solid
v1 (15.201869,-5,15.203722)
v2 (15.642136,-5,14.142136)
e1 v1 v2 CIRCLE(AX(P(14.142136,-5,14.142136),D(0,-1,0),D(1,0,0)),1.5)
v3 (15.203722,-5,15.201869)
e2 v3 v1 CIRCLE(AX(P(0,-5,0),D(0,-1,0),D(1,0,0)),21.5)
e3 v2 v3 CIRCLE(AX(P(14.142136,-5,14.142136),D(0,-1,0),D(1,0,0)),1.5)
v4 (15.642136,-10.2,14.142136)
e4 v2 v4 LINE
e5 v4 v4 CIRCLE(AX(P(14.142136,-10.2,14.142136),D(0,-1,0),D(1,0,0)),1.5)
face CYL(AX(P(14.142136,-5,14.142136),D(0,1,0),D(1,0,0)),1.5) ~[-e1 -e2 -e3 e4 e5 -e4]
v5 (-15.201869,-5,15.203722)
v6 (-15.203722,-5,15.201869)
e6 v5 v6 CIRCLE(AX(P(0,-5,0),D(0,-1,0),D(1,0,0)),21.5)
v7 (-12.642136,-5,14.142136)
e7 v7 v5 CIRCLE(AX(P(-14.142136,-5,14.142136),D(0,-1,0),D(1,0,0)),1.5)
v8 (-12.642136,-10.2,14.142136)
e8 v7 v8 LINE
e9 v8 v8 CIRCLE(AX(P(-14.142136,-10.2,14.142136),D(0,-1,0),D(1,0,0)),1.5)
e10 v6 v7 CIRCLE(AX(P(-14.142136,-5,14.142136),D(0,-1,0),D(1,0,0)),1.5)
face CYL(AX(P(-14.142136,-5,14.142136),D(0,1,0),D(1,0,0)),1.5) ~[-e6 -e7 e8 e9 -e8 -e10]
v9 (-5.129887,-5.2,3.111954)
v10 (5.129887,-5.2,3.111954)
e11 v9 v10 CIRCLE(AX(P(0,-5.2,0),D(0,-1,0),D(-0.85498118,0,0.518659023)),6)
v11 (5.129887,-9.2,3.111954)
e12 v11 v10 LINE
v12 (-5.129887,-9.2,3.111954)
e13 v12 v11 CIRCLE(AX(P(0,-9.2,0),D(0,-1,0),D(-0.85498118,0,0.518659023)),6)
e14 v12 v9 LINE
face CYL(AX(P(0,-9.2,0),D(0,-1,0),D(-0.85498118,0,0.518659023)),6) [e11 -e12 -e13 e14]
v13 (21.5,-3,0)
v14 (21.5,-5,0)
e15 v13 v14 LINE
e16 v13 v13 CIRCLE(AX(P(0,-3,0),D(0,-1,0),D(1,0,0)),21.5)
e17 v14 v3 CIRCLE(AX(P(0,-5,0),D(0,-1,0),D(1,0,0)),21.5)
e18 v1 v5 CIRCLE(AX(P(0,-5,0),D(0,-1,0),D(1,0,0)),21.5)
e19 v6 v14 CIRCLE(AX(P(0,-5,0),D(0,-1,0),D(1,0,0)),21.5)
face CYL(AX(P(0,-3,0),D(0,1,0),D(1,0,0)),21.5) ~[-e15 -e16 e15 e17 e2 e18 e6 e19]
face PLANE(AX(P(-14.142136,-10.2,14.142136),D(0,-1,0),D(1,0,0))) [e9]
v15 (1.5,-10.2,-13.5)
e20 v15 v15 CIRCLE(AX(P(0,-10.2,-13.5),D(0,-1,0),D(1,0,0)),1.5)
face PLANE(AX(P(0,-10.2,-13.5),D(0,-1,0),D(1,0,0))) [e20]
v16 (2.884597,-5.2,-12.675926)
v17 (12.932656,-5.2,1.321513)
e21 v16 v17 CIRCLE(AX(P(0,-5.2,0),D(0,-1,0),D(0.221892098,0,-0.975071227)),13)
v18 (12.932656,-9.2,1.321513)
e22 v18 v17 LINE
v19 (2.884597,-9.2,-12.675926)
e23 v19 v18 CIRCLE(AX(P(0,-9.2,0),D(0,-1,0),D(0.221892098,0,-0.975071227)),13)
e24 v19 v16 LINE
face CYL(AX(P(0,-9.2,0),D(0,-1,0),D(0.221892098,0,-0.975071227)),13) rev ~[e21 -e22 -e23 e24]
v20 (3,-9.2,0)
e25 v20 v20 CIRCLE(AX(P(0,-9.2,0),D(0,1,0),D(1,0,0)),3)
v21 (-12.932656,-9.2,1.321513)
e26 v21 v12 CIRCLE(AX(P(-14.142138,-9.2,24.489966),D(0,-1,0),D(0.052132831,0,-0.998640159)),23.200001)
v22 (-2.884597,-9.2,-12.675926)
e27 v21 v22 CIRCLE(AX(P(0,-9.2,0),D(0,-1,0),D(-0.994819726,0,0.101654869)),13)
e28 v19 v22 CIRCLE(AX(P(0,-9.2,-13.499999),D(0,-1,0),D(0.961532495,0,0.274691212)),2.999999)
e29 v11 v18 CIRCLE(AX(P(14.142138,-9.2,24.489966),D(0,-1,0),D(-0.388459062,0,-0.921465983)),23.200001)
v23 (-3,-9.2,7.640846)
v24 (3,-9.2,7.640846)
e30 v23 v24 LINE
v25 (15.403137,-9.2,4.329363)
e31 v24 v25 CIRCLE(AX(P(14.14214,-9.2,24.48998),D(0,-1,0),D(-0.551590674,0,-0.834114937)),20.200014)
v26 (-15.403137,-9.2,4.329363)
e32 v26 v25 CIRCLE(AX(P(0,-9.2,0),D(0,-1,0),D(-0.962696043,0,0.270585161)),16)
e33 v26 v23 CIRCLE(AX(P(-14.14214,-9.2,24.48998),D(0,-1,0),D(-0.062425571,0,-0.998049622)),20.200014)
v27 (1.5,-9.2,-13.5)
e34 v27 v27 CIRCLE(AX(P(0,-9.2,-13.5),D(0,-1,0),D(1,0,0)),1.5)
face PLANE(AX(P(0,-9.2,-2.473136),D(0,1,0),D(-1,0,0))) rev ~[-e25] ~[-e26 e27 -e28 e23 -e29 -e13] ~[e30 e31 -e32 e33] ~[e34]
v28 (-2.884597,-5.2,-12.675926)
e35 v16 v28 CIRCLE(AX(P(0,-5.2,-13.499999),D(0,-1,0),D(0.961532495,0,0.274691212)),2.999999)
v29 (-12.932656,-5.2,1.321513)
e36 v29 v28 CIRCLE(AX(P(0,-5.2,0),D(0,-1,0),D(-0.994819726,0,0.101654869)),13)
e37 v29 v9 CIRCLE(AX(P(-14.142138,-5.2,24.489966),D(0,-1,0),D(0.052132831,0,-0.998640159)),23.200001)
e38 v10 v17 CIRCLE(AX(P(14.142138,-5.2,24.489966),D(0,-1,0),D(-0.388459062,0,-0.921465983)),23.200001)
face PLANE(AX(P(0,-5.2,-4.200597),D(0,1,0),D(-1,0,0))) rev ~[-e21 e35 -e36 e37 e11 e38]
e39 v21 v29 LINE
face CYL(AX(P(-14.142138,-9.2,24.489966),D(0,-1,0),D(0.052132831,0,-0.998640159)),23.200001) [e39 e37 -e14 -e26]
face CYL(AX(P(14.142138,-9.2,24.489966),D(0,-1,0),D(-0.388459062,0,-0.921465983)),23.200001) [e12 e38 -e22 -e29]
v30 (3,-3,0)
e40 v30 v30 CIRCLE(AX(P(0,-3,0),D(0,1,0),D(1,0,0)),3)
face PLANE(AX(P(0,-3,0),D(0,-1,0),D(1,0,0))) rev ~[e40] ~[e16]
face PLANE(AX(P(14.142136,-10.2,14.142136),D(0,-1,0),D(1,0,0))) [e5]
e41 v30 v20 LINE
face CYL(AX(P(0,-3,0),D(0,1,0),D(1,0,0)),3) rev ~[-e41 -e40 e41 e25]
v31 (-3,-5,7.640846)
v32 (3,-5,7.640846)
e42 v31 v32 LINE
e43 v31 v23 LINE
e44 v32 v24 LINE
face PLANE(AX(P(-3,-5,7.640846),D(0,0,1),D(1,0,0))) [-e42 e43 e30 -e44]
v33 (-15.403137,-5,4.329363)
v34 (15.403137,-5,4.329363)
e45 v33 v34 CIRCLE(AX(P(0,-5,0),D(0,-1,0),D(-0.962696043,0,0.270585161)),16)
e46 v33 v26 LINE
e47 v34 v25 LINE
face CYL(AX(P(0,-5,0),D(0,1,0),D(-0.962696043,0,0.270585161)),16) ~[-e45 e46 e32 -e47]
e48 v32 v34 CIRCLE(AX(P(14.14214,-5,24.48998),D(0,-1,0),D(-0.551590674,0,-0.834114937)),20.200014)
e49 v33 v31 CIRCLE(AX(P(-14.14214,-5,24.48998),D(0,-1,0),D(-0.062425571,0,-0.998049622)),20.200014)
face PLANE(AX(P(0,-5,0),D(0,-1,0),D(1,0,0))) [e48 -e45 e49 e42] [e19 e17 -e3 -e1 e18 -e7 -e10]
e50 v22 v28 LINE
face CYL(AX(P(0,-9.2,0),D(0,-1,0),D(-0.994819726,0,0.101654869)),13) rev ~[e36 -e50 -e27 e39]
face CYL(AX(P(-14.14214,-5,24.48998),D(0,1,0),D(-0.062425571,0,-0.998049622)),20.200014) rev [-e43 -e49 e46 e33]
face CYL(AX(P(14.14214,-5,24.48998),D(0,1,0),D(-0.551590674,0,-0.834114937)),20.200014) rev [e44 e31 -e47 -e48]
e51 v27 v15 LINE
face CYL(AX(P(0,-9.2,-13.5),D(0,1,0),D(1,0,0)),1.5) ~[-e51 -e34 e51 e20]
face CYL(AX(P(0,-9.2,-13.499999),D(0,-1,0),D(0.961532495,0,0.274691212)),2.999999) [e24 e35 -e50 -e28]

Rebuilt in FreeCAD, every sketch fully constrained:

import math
import FreeCAD as App
import Part
import Sketcher
from FreeCAD import Vector
Q = App.Units.Quantity

doc = App.newDocument("Part")
params = doc.addObject("Spreadsheet::Sheet", "Params")
for row, (alias, value) in enumerate([
    ("sketch1_diameter", "43 mm"),
    ("pad1_length", "2 mm"),
    ("sketch2_diameter", "3 mm"),
    ("pad2_length", "5.2 mm"),
    ("sketch3_radius", "16 mm"),
    ("sketch3_width", "6 mm"),
    ("pad3_length", "4.2 mm"),
    ("sketch4_diameter", "3 mm"),
    ("pad4_length", "1 mm"),
    ("sketch5_radius", "13 mm"),
    ("sketch5_radius2", "2.999999 mm"),
    ("sketch5_radius3", "6 mm"),
    ("sketch5_radius4", "23.200001 mm"),
    ("pocket1_length", "4 mm"),
    ("sketch6_diameter", "6 mm"),
    ("sketch7_diameter", "6 mm"),
], start=1):
    params.set(f"A{row}", alias)
    params.set(f"B{row}", "=" + value)
    params.setAlias(f"B{row}", alias)

body = doc.addObject("PartDesign::Body", "Body")

# Sketch on XZ plane
sketch1 = body.newObject("Sketcher::SketchObject", "Sketch")
sketch1.AttachmentSupport = (doc.getObject("XZ_Plane"), [""])
sketch1.MapMode = "FlatFace"
sketch1.addGeometry(Part.Circle(Vector(0, 0, 0), Vector(0, 0, 1), 22), False)
sketch1.addConstraint([
    Sketcher.Constraint("Coincident", 0, 3, -1, 1),
    Sketcher.Constraint("Diameter", 0, Q("43 mm")),
])
sketch1.setExpression("Constraints[1]", "Params.sketch1_diameter")
pad1 = body.newObject("PartDesign::Pad", "Pad")
pad1.Profile = sketch1
pad1.setExpression("Length", "Params.pad1_length")

# Sketch on XZ plane
sketch2 = body.newObject("Sketcher::SketchObject", "Sketch001")
sketch2.AttachmentSupport = (doc.getObject("XZ_Plane"), [""])
sketch2.MapMode = "FlatFace"
sketch2.AttachmentOffset = App.Placement(Vector(0, 0, 2), App.Rotation())
sketch2.addGeometry([
    Part.Circle(Vector(-14.1, 14.1, 0), Vector(0, 0, 1), 1.5),
    Part.Circle(Vector(14.1, 14.1, 0), Vector(0, 0, 1), 1.5),
], False)
sketch2.addConstraint([
    Sketcher.Constraint("Equal", 0, 1),
    Sketcher.Constraint("Symmetric", 0, 3, 1, 3, -2),
    Sketcher.Constraint("Diameter", 0, Q("3 mm")),
    Sketcher.Constraint("DistanceX", 0, 3, -1, 1, Q("14.142136 mm")),
    Sketcher.Constraint("DistanceY", -1, 1, 0, 3, Q("14.142136 mm")),
])
sketch2.setExpression("Constraints[2]", "Params.sketch2_diameter")
pad2 = body.newObject("PartDesign::Pad", "Pad001")
pad2.Profile = sketch2
pad2.setExpression("Length", "Params.pad2_length")

# Sketch on XZ plane
sketch3 = body.newObject("Sketcher::SketchObject", "Sketch002")
sketch3.AttachmentSupport = (doc.getObject("XZ_Plane"), [""])
sketch3.MapMode = "FlatFace"
sketch3.AttachmentOffset = App.Placement(Vector(0, 0, 2), App.Rotation())
sketch3.addGeometry([
    Part.ArcOfCircle(Part.Circle(Vector(-14, 24, 0), Vector(0, 0, 1), 20), math.radians(-94), math.radians(-57)),
    Part.ArcOfCircle(Part.Circle(Vector(0, 0, 0), Vector(0, 0, 1), 16), math.radians(164), math.radians(376)),
    Part.ArcOfCircle(Part.Circle(Vector(14, 24, 0), Vector(0, 0, 1), 20), math.radians(-123), math.radians(-86)),
    Part.LineSegment(Vector(3, 8, 0), Vector(-3, 8, 0)),
], False)
sketch3.addConstraint([
    Sketcher.Constraint("Coincident", 0, 1, 1, 1),
    Sketcher.Constraint("Coincident", 1, 2, 2, 2),
    Sketcher.Constraint("Coincident", 2, 1, 3, 1),
    Sketcher.Constraint("Coincident", 3, 2, 0, 2),
    Sketcher.Constraint("Horizontal", 3),
    Sketcher.Constraint("Coincident", 1, 3, -1, 1),
    Sketcher.Constraint("Equal", 0, 2),
    Sketcher.Constraint("Symmetric", 0, 3, 2, 3, -2),
    Sketcher.Constraint("Radius", 1, Q("16 mm")),
    Sketcher.Constraint("DistanceX", 3, 2, 3, 1, Q("6 mm")),
    Sketcher.Constraint("Radius", 0, Q("20.200014 mm")),
    Sketcher.Constraint("DistanceX", 0, 3, -1, 1, Q("14.14214 mm")),
    Sketcher.Constraint("DistanceY", -1, 1, 0, 3, Q("24.48998 mm")),
])
sketch3.setExpression("Constraints[8]", "Params.sketch3_radius")
sketch3.setExpression("Constraints[9]", "Params.sketch3_width")
pad3 = body.newObject("PartDesign::Pad", "Pad002")
pad3.Profile = sketch3
pad3.setExpression("Length", "Params.pad3_length")

# Sketch on XZ plane
sketch4 = body.newObject("Sketcher::SketchObject", "Sketch003")
sketch4.AttachmentSupport = (doc.getObject("XZ_Plane"), [""])
sketch4.MapMode = "FlatFace"
sketch4.AttachmentOffset = App.Placement(Vector(0, 0, 6.2), App.Rotation())
sketch4.addGeometry(Part.Circle(Vector(0, -13.5, 0), Vector(0, 0, 1), 1.5), False)
sketch4.addConstraint([
    Sketcher.Constraint("PointOnObject", 0, 3, -2),
    Sketcher.Constraint("Diameter", 0, Q("3 mm")),
    Sketcher.Constraint("DistanceY", 0, 3, -1, 1, Q("13.5 mm")),
])
sketch4.setExpression("Constraints[1]", "Params.sketch4_diameter")
pad4 = body.newObject("PartDesign::Pad", "Pad003")
pad4.Profile = sketch4
pad4.setExpression("Length", "Params.pad4_length")

# Sketch on XZ plane
sketch5 = body.newObject("Sketcher::SketchObject", "Sketch004")
sketch5.AttachmentSupport = (doc.getObject("XZ_Plane"), [""])
sketch5.MapMode = "FlatFace"
sketch5.AttachmentOffset = App.Placement(Vector(0, 0, 6.2), App.Rotation())
sketch5.addGeometry([
    Part.ArcOfCircle(Part.Circle(Vector(-14.1, 24.5, 0), Vector(0, 0, 1), 23.2), math.radians(-87.01), math.radians(-67.14)),  # 0
    Part.ArcOfCircle(Part.Circle(Vector(0, 0, 0), Vector(0, 0, 1), 13), math.radians(174), math.radians(257)),  # 1
    Part.ArcOfCircle(Part.Circle(Vector(0, -13.5, 0), Vector(0, 0, 1), 3), math.radians(16), math.radians(164)),  # 2
    Part.ArcOfCircle(Part.Circle(Vector(0, 0, 0), Vector(0, 0, 1), 13), math.radians(-77), math.radians(6)),  # 3
    Part.ArcOfCircle(Part.Circle(Vector(14.1, 24.5, 0), Vector(0, 0, 1), 23.2), math.radians(-112.86), math.radians(-92.99)),  # 4
    Part.ArcOfCircle(Part.Circle(Vector(0, 0, 0), Vector(0, 0, 1), 6), math.radians(149), math.radians(391)),  # 5
], False)
sketch5.addConstraint([
    Sketcher.Constraint("Coincident", 0, 1, 1, 1),
    Sketcher.Constraint("Coincident", 1, 2, 2, 2),
    Sketcher.Constraint("Coincident", 2, 1, 3, 1),
    Sketcher.Constraint("Coincident", 3, 2, 4, 2),
    Sketcher.Constraint("Coincident", 4, 1, 5, 2),
    Sketcher.Constraint("Coincident", 5, 1, 0, 2),
    Sketcher.Constraint("Coincident", 1, 3, -1, 1),
    Sketcher.Constraint("Coincident", 3, 3, -1, 1),
    Sketcher.Constraint("Coincident", 5, 3, -1, 1),
    Sketcher.Constraint("Equal", 1, 3),
    Sketcher.Constraint("Equal", 0, 4),
    Sketcher.Constraint("Symmetric", 0, 3, 4, 3, -2),
    Sketcher.Constraint("PointOnObject", 2, 3, -2),
    Sketcher.Constraint("Radius", 1, Q("13 mm")),
    Sketcher.Constraint("Radius", 2, Q("2.999999 mm")),
    Sketcher.Constraint("Radius", 5, Q("6 mm")),
    Sketcher.Constraint("Radius", 0, Q("23.200001 mm")),
    Sketcher.Constraint("DistanceY", 2, 3, -1, 1, Q("13.499999 mm")),
    Sketcher.Constraint("DistanceX", 0, 3, 0, 1, Q("1.209482 mm")),
    Sketcher.Constraint("DistanceX", 0, 1, 1, 2, Q("10.048059 mm")),
])
sketch5.setExpression("Constraints[13]", "Params.sketch5_radius")
sketch5.setExpression("Constraints[14]", "Params.sketch5_radius2")
sketch5.setExpression("Constraints[15]", "Params.sketch5_radius3")
sketch5.setExpression("Constraints[16]", "Params.sketch5_radius4")
pocket1 = body.newObject("PartDesign::Pocket", "Pocket")
pocket1.Profile = sketch5
pocket1.setExpression("Length", "Params.pocket1_length")

# Sketch on XZ plane
sketch6 = body.newObject("Sketcher::SketchObject", "Sketch005")
sketch6.AttachmentSupport = (doc.getObject("XZ_Plane"), [""])
sketch6.MapMode = "FlatFace"
sketch6.addGeometry(Part.Circle(Vector(0, 0, 0), Vector(0, 0, 1), 3), False)
sketch6.addConstraint([
    Sketcher.Constraint("Coincident", 0, 3, -1, 1),
    Sketcher.Constraint("Diameter", 0, Q("6 mm")),
])
sketch6.setExpression("Constraints[1]", "Params.sketch6_diameter")
pocket2 = body.newObject("PartDesign::Pocket", "Pocket001")
pocket2.Profile = sketch6
pocket2.Type = "ThroughAll"
pocket2.Reversed = True

# Sketch on XZ plane
sketch7 = body.newObject("Sketcher::SketchObject", "Sketch006")
sketch7.AttachmentSupport = (doc.getObject("XZ_Plane"), [""])
sketch7.MapMode = "FlatFace"
sketch7.addGeometry(Part.Circle(Vector(0, 0, 0), Vector(0, 0, 1), 3), False)
sketch7.addConstraint([
    Sketcher.Constraint("Coincident", 0, 3, -1, 1),
    Sketcher.Constraint("Diameter", 0, Q("6 mm")),
])
sketch7.setExpression("Constraints[1]", "Params.sketch7_diameter")
pocket3 = body.newObject("PartDesign::Pocket", "Pocket002")
pocket3.Profile = sketch7
pocket3.Type = "ThroughAll"
pocket3.Reversed = True
body2 = doc.addObject("PartDesign::Body", "Body001")
doc.recompute()

body.Placement = App.Placement(Vector(0, -3, 0), App.Rotation(Vector(0, 0, 1), 0))
boolean = body2.newObject("PartDesign::Boolean", "Boolean")
boolean.Type = "Fuse"
boolean.addObjects([body])

doc.recompute()
